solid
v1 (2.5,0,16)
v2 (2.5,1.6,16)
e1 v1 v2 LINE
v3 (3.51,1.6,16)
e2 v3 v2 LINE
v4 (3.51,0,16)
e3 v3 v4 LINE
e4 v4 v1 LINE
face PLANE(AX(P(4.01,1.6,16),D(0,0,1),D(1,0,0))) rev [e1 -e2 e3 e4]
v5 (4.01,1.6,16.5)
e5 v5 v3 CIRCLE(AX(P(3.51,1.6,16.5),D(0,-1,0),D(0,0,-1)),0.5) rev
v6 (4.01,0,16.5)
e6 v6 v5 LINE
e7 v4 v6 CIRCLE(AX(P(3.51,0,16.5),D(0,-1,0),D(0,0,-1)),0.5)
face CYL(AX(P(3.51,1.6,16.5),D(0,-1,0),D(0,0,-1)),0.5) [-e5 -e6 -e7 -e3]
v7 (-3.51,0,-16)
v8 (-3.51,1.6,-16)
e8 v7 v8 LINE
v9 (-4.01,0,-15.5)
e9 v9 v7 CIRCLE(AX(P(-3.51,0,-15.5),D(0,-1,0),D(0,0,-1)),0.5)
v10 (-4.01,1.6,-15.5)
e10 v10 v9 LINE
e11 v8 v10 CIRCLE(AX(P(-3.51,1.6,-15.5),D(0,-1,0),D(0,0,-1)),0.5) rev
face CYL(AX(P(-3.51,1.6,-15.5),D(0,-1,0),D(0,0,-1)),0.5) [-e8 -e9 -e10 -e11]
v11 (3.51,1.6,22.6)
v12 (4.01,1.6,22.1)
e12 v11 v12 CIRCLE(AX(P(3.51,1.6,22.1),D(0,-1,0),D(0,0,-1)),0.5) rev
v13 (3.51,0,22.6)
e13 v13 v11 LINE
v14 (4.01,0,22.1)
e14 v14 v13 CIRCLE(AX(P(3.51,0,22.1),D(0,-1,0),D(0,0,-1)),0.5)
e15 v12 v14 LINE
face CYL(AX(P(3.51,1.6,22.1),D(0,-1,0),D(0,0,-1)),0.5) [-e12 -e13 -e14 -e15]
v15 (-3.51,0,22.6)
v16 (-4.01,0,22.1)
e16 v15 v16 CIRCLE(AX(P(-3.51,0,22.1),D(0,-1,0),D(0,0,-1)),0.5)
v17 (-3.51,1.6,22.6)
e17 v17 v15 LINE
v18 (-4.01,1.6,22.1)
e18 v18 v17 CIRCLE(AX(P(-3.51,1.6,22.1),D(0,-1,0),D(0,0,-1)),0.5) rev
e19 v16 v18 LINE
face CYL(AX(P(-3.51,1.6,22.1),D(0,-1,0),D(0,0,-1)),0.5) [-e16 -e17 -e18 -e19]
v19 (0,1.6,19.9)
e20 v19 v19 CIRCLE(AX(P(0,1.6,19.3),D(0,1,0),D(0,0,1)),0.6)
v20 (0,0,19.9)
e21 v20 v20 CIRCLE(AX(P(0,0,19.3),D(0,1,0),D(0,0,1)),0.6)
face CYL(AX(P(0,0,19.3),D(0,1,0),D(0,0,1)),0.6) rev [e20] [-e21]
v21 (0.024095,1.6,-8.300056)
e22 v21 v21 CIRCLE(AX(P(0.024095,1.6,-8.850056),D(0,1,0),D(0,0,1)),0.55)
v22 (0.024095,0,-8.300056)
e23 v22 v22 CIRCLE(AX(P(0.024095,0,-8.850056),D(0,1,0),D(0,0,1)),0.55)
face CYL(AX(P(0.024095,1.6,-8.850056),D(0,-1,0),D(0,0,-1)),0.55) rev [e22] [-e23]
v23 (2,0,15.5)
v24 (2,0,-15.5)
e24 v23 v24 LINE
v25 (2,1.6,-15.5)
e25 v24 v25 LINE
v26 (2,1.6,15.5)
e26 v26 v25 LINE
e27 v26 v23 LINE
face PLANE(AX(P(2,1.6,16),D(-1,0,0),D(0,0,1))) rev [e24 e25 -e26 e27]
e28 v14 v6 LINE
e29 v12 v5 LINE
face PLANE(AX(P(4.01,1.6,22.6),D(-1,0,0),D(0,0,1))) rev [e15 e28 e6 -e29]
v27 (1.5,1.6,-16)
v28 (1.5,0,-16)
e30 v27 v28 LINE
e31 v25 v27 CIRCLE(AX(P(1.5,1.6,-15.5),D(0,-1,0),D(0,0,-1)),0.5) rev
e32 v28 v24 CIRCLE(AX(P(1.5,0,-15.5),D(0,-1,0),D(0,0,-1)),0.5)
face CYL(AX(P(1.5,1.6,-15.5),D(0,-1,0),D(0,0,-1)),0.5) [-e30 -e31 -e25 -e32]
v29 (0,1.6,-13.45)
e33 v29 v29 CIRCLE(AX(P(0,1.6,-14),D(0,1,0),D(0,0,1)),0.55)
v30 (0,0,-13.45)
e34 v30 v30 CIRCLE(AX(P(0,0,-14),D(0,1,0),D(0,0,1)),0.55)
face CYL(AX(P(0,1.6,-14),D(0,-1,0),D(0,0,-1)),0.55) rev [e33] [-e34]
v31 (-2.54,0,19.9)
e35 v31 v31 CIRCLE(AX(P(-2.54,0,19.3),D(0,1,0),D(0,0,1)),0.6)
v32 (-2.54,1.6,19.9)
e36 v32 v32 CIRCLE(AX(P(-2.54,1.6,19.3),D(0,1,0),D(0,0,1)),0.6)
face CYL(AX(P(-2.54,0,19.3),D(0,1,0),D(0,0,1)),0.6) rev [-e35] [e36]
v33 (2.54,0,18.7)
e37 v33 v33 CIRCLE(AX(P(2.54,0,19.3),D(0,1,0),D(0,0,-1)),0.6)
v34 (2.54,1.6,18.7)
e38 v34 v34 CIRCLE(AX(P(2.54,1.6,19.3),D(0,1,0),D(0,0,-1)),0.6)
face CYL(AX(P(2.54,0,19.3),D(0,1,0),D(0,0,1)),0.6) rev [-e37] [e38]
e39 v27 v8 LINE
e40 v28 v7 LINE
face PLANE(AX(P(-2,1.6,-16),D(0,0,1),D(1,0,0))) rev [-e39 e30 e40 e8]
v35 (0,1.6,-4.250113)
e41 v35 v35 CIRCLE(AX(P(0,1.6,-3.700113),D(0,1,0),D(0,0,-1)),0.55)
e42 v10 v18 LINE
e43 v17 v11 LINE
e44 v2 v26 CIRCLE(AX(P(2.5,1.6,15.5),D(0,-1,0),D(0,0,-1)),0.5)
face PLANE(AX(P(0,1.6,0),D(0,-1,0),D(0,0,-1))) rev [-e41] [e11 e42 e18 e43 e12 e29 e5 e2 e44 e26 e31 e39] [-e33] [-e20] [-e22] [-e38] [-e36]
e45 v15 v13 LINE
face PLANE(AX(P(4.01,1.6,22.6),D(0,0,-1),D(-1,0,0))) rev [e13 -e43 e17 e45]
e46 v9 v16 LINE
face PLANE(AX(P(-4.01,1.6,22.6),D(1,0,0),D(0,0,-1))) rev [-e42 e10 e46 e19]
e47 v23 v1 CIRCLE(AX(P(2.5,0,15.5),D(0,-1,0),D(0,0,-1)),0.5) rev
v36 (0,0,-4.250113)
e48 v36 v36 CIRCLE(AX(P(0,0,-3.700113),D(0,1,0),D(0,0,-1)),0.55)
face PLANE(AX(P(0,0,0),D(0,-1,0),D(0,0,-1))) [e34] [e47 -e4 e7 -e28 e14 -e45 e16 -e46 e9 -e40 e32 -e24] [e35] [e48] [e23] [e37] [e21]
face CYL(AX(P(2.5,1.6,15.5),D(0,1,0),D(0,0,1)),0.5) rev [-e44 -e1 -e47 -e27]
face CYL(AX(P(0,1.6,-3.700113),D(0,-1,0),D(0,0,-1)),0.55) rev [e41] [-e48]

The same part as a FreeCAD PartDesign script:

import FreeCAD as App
import Part
import Sketcher


def edges_at(feature, points):
    """Names of the edges that pass closest to the given points."""
    edges = feature.Shape.Edges
    near = lambda p: min(range(len(edges)), key=lambda i: edges[i].distToShape(Part.Vertex(*p))[0])
    return sorted({f"Edge{near(p) + 1}" for p in points})


def add_polygon(sketch, points):
    """Adds a closed chain of lines whose ends are joined by coincident constraints."""
    first, n = sketch.GeometryCount, len(points)
    for a, b in zip(points, points[1:] + points[:1]):
        sketch.addGeometry(Part.LineSegment(App.Vector(*a, 0), App.Vector(*b, 0)), False)
    for i in range(n):
        sketch.addConstraint(Sketcher.Constraint("Coincident", first + i, 2, first + (i + 1) % n, 1))

doc = App.newDocument("Part")
body = doc.addObject("PartDesign::Body", "Body")

# Sketch on XZ plane
sketch1 = doc.addObject("Sketcher::SketchObject", "Sketch")
body.addObject(sketch1)
sketch1.AttachmentSupport = (doc.XZ_Plane, [""])
sketch1.MapMode = "FlatFace"
add_polygon(sketch1, [(-2, -16), (-2, 16), (2, 16), (2, -16)])  # lines 0-3
sketch1.addGeometry(Part.Circle(App.Vector(0, -3.7, 0), App.Vector(0, 0, 1), 0.6), False)  # 4
sketch1.addGeometry(Part.Circle(App.Vector(0, -14, 0), App.Vector(0, 0, 1), 0.6), False)  # 5
sketch1.addGeometry(Part.Circle(App.Vector(0, -8.9, 0), App.Vector(0, 0, 1), 0.6), False)  # 6
sketch1.addConstraint([
    Sketcher.Constraint("Vertical", 0),
    Sketcher.Constraint("Horizontal", 1),
    Sketcher.Constraint("Vertical", 2),
    Sketcher.Constraint("Horizontal", 3),
    Sketcher.Constraint("Equal", 4, 5),
    Sketcher.Constraint("Equal", 5, 6),
    Sketcher.Constraint("Symmetric", 0, 2, 2, 2, -1, 1),
    Sketcher.Constraint("PointOnObject", 4, 3, -2),
    Sketcher.Constraint("PointOnObject", 5, 3, -2),
    Sketcher.Constraint("Diameter", 4, 1.1),
    Sketcher.Constraint("DistanceX", 1, 1, 1, 2, 4.0),
    Sketcher.Constraint("DistanceY", 0, 1, 0, 2, 32.0),
    Sketcher.Constraint("DistanceY", 5, 3, -1, 1, 14.0),
    Sketcher.Constraint("DistanceY", 4, 3, -1, 1, 3.700113),
    Sketcher.Constraint("DistanceX", -1, 1, 6, 3, 0.024095),
    Sketcher.Constraint("DistanceY", 6, 3, -1, 1, 8.850056),
])
pad1 = doc.addObject("PartDesign::Pad", "Pad")
body.addObject(pad1)
pad1.Profile = sketch1
pad1.Length = 1.6
pad1.Reversed = True

# Sketch on XZ plane
sketch2 = doc.addObject("Sketcher::SketchObject", "Sketch001")
body.addObject(sketch2)
sketch2.AttachmentSupport = (doc.XZ_Plane, [""])
sketch2.MapMode = "FlatFace"
add_polygon(sketch2, [(-4, 16), (-4, 23), (4, 23), (4, 16)])  # lines 0-3
sketch2.addConstraint([
    Sketcher.Constraint("Vertical", 0),
    Sketcher.Constraint("Horizontal", 1),
    Sketcher.Constraint("Vertical", 2),
    Sketcher.Constraint("Horizontal", 3),
    Sketcher.Constraint("DistanceY", 0, 1, 0, 2, 6.6),
    Sketcher.Constraint("DistanceY", -1, 1, 2, 2, 16.0),
    Sketcher.Constraint("DistanceX", 1, 1, 1, 2, 8.02),
    Sketcher.Constraint("DistanceX", 0, 2, -1, 1, 4.01),
])
pad2 = doc.addObject("PartDesign::Pad", "Pad001")
body.addObject(pad2)
pad2.Profile = sketch2
pad2.Length = 1.6
pad2.Reversed = True

# Sketch on XZ plane
sketch3 = doc.addObject("Sketcher::SketchObject", "Sketch002")
body.addObject(sketch3)
sketch3.AttachmentSupport = (doc.XZ_Plane, [""])
sketch3.MapMode = "FlatFace"
sketch3.AttachmentOffset = App.Placement(App.Vector(0, 0, -1.6), App.Rotation())
sketch3.addGeometry([
    Part.Circle(App.Vector(0, 19.3, 0), App.Vector(0, 0, 1), 0.6),
    Part.Circle(App.Vector(-2.5, 19.3, 0), App.Vector(0, 0, 1), 0.6),
    Part.Circle(App.Vector(2.5, 19.3, 0), App.Vector(0, 0, 1), 0.6),
], False)
sketch3.addConstraint([
    Sketcher.Constraint("Equal", 0, 1),
    Sketcher.Constraint("Equal", 1, 2),
    Sketcher.Constraint("Symmetric", 1, 3, 2, 3, -2),
    Sketcher.Constraint("PointOnObject", 0, 3, -2),
    Sketcher.Constraint("Horizontal", 0, 3, 1, 3),
    Sketcher.Constraint("Diameter", 0, 1.2),
    Sketcher.Constraint("DistanceY", -1, 1, 0, 3, 19.3),
    Sketcher.Constraint("DistanceX", 1, 3, -1, 1, 2.54),
])
pocket1 = doc.addObject("PartDesign::Pocket", "Pocket")
body.addObject(pocket1)
pocket1.Profile = sketch3
pocket1.Length = 1.6
pocket1.Reversed = True

# Sketch on XZ plane
sketch4 = doc.addObject("Sketcher::SketchObject", "Sketch003")
body.addObject(sketch4)
sketch4.AttachmentSupport = (doc.XZ_Plane, [""])
sketch4.MapMode = "FlatFace"
add_polygon(sketch4, [(-4, -16), (-4, 16), (-2, 16), (-2, -16)])  # lines 0-3
sketch4.addConstraint([
    Sketcher.Constraint("Vertical", 0),
    Sketcher.Constraint("Horizontal", 1),
    Sketcher.Constraint("Vertical", 2),
    Sketcher.Constraint("Horizontal", 3),
    Sketcher.Constraint("DistanceY", 0, 1, 0, 2, 32.0),
    Sketcher.Constraint("DistanceY", -1, 1, 0, 2, 16.0),
    Sketcher.Constraint("DistanceX", 1, 2, -1, 1, 2.0),
    Sketcher.Constraint("DistanceX", 1, 1, 1, 2, 2.01),
])
pad3 = doc.addObject("PartDesign::Pad", "Pad002")
body.addObject(pad3)
pad3.Profile = sketch4
pad3.Length = 1.6
pad3.Reversed = True
doc.recompute()

fillet = doc.addObject("PartDesign::Fillet", "Fillet")
body.addObject(fillet)
fillet.Base = (pad3, edges_at(pad3, [
    (4.01, 0.8, 22.6),
    (4.01, 0.8, 16),
    (-4.01, 0.8, 22.6),
    (-4.01, 0.8, -16),
    (2, 0.8, 16),
    (2, 0.8, -16),
]))
fillet.Radius = 0.5

doc.recompute()
